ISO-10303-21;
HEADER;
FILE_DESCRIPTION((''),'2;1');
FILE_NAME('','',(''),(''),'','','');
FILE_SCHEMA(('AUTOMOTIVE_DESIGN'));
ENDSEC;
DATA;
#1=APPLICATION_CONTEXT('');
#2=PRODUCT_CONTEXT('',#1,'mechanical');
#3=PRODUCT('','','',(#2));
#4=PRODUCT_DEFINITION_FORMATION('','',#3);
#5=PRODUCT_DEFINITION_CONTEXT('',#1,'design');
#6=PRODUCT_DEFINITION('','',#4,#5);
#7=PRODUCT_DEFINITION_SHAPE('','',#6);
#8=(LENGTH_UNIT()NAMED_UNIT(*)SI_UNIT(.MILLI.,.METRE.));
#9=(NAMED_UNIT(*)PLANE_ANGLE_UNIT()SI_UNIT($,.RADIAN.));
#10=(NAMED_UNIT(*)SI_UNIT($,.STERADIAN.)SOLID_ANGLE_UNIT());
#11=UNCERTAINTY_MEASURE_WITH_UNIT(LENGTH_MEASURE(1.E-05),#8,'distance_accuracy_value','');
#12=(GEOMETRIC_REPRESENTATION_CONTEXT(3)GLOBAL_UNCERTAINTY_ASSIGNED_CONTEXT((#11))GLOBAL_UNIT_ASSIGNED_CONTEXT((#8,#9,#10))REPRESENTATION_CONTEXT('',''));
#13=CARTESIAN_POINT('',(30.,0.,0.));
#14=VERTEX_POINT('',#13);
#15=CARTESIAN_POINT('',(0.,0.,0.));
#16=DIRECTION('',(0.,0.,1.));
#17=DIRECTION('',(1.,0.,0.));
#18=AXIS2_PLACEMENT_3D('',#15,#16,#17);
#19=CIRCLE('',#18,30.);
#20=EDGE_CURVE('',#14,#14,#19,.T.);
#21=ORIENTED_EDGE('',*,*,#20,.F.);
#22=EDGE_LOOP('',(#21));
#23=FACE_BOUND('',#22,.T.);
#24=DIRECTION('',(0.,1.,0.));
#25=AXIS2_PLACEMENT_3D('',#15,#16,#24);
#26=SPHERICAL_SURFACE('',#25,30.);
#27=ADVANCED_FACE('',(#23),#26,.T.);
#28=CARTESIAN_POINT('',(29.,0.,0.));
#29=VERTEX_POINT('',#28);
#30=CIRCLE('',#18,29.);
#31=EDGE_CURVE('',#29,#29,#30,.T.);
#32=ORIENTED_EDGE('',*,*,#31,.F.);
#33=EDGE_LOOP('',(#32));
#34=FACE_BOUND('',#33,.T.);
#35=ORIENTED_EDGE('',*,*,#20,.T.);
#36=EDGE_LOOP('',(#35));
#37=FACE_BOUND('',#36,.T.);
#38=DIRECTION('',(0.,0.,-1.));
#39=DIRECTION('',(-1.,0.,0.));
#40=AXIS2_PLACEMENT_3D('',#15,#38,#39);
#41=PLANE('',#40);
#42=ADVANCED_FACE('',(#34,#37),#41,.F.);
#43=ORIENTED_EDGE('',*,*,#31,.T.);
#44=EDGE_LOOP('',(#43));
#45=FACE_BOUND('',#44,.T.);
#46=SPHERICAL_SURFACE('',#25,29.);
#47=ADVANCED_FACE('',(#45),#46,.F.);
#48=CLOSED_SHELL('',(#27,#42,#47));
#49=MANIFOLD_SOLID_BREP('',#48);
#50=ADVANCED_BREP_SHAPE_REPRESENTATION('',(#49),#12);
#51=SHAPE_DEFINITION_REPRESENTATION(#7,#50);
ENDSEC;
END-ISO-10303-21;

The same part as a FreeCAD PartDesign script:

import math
import FreeCAD as App
import Part
import Sketcher

V = App.Vector

doc = App.newDocument("Part")
params = doc.addObject("Spreadsheet::Sheet", "Params")
for row, (alias, value) in enumerate([
    ("sketch1_radius", "29 mm"),
    ("sketch1_radius2", "30 mm"),
    ("revolution_angle", "360 deg"),
], start=1):
    params.set(f"A{row}", alias)
    params.set(f"B{row}", "=" + value)
    params.setAlias(f"B{row}", alias)

body = doc.addObject("PartDesign::Body", "Body")

sketch1 = body.newObject("Sketcher::SketchObject", "Sketch")
sketch1.AttachmentSupport = (doc.getObject("YZ_Plane"), [""])
sketch1.MapMode = "FlatFace"
sketch1.addGeometry(Part.ArcOfCircle(Part.Circle(V(0, 0, 0), V(0, 0, 1), 29), math.radians(-90), math.radians(0)), False)
sketch1.addGeometry(Part.LineSegment(V(0, -29, 0), V(0, -30, 0)), False)
sketch1.addGeometry(Part.ArcOfCircle(Part.Circle(V(0, 0, 0), V(0, 0, 1), 30), math.radians(-90), math.radians(0)), False)
sketch1.addGeometry(Part.LineSegment(V(30, 0, 0), V(29, 0, 0)), False)
sketch1.addConstraint(Sketcher.Constraint("Coincident", 0, 1, 1, 1))
sketch1.addConstraint(Sketcher.Constraint("Coincident", 1, 2, 2, 1))
sketch1.addConstraint(Sketcher.Constraint("Coincident", 2, 2, 3, 1))
sketch1.addConstraint(Sketcher.Constraint("Coincident", 3, 2, 0, 2))
sketch1.addConstraint(Sketcher.Constraint("Vertical", 1))
sketch1.addConstraint(Sketcher.Constraint("Horizontal", 3))
sketch1.addConstraint(Sketcher.Constraint("Coincident", 0, 3, -1, 1))
sketch1.addConstraint(Sketcher.Constraint("Coincident", 2, 3, -1, 1))
sketch1.addConstraint(Sketcher.Constraint("PointOnObject", 0, 1, -2))
sketch1.addConstraint(Sketcher.Constraint("PointOnObject", 2, 2, -1))
sketch1.addConstraint(Sketcher.Constraint("Radius", 0, 29.0))
sketch1.addConstraint(Sketcher.Constraint("Radius", 2, 30.0))
sketch1.setExpression("Constraints[10]", "Params.sketch1_radius")
sketch1.setExpression("Constraints[11]", "Params.sketch1_radius2")
revolution = body.newObject("PartDesign::Revolution", "Revolution")
revolution.Profile = sketch1
revolution.ReferenceAxis = (sketch1, ["V_Axis"])
revolution.setExpression("Angle", "Params.revolution_angle")

doc.recompute()
